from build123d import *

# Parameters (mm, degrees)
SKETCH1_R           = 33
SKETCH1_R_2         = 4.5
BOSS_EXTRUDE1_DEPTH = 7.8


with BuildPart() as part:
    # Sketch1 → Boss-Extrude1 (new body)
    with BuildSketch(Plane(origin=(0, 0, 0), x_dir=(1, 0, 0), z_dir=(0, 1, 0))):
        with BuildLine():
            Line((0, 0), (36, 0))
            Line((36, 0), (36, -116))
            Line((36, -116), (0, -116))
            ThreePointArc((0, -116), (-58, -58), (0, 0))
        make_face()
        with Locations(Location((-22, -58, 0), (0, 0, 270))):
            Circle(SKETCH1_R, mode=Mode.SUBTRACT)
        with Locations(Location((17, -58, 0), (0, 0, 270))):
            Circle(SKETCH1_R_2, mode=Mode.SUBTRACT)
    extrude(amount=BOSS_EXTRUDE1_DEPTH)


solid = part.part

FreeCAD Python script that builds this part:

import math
import FreeCAD as App
import Part
import Sketcher
from FreeCAD import Vector
Q = App.Units.Quantity

doc = App.newDocument("Part")
body = doc.addObject("PartDesign::Body", "Body")

# Sketch on XZ plane
sketch1 = body.newObject("Sketcher::SketchObject", "Sketch")
sketch1.AttachmentSupport = (doc.getObject("XZ_Plane"), [""])
sketch1.MapMode = "FlatFace"
sketch1.addGeometry([
    Part.LineSegment(Vector(36, 0, 0), Vector(0, 0, 0)),  # 0
    Part.ArcOfCircle(Part.Circle(Vector(0, 58, 0), Vector(0, 0, 1), 58), math.radians(90), math.radians(270)),  # 1
    Part.LineSegment(Vector(0, 116, 0), Vector(36, 116, 0)),  # 2
    Part.LineSegment(Vector(36, 116, 0), Vector(36, 0, 0)),  # 3
    Part.Circle(Vector(17, 58, 0), Vector(0, 0, 1), 4.5),  # 4
    Part.Circle(Vector(-22, 58, 0), Vector(0, 0, 1), 33),  # 5
], False)
sketch1.addConstraint([
    Sketcher.Constraint("Tangent", 0, 2, 1, 2),
    Sketcher.Constraint("Tangent", 1, 1, 2, 1),
    Sketcher.Constraint("Coincident", 2, 2, 3, 1),
    Sketcher.Constraint("Coincident", 3, 2, 0, 1),
    Sketcher.Constraint("Horizontal", 0),
    Sketcher.Constraint("Horizontal", 2),
    Sketcher.Constraint("Vertical", 3),
    Sketcher.Constraint("Coincident", 0, 2, -1, 1),
    Sketcher.Constraint("Horizontal", 1, 3, 4, 3),
    Sketcher.Constraint("Horizontal", 4, 3, 5, 3),
    Sketcher.Constraint("Diameter", 4, Q("9 mm")),
    Sketcher.Constraint("Diameter", 5, Q("66 mm")),
    Sketcher.Constraint("Radius", 1, Q("58 mm")),
    Sketcher.Constraint("DistanceX", 0, 2, 0, 1, Q("36 mm")),
    Sketcher.Constraint("DistanceX", -1, 1, 4, 3, Q("17 mm")),
    Sketcher.Constraint("DistanceX", 5, 3, -1, 1, Q("22 mm")),
])
pad1 = body.newObject("PartDesign::Pad", "Pad")
pad1.Profile = sketch1
pad1.Length = 7.8
pad1.Reversed = True

doc.recompute()
